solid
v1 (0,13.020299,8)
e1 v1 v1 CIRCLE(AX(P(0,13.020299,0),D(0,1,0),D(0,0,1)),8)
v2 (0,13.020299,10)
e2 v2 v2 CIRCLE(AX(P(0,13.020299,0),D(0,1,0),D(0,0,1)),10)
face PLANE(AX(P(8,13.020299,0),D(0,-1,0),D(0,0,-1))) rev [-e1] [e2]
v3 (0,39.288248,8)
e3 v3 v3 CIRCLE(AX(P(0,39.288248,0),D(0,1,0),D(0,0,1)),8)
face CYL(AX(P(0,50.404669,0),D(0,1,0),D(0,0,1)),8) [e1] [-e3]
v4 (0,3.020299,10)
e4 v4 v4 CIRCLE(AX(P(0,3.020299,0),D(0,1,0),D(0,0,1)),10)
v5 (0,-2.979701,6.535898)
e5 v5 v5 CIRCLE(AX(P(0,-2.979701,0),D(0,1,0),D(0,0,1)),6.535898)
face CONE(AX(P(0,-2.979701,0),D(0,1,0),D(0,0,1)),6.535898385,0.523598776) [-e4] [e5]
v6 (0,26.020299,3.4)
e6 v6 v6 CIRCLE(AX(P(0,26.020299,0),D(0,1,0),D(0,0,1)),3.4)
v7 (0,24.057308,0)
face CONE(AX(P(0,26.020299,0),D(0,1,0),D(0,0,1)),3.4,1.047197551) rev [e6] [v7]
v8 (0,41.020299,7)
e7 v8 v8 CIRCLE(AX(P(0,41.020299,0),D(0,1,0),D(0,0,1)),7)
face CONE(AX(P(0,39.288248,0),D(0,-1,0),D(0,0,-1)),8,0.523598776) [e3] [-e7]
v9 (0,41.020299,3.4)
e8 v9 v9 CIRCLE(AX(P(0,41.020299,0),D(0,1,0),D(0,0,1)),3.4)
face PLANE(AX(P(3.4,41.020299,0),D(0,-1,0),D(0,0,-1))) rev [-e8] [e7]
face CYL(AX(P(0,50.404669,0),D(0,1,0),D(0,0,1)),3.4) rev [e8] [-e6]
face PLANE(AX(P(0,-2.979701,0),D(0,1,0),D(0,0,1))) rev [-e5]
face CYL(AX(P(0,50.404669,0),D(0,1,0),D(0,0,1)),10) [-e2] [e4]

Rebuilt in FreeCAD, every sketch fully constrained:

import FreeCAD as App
import Part
import Sketcher

V = App.Vector
Q = App.Units.Quantity


def add_polygon(sketch, points):
    """Adds a closed chain of lines whose ends are joined by coincident constraints."""
    first, n = sketch.GeometryCount, len(points)
    for a, b in zip(points, points[1:] + points[:1]):
        sketch.addGeometry(Part.LineSegment(App.Vector(*a, 0), App.Vector(*b, 0)), False)
    for i in range(n):
        sketch.addConstraint(Sketcher.Constraint("Coincident", first + i, 2, first + (i + 1) % n, 1))

doc = App.newDocument("Part")
body = doc.addObject("PartDesign::Body", "Body")

# Sketch on XY plane
sketch1 = body.newObject("Sketcher::SketchObject", "Sketch")
sketch1.AttachmentSupport = (doc.getObject("XY_Plane"), [""])
sketch1.MapMode = "FlatFace"
add_polygon(sketch1, [(7, 41.020299), (3.4, 41.020299), (3.4, 26.020299), (0, 24.057308), (0, -2.979701), (6.535898, -2.979701), (10, 3.020299), (10, 13.020299), (8, 13.020299), (8, 39.288248)])  # lines 0-9
sketch1.addConstraint([
    Sketcher.Constraint("Horizontal", 0),
    Sketcher.Constraint("Vertical", 1),
    Sketcher.Constraint("Vertical", 3),
    Sketcher.Constraint("Horizontal", 4),
    Sketcher.Constraint("Vertical", 6),
    Sketcher.Constraint("Horizontal", 7),
    Sketcher.Constraint("Vertical", 8),
    Sketcher.Constraint("PointOnObject", 2, 2, -2),
    Sketcher.Constraint("Perpendicular", 2, 9),
    Sketcher.Constraint("DistanceX", 7, 2, 7, 1, Q("2 mm")),
    Sketcher.Constraint("DistanceY", 1, 2, 1, 1, Q("15 mm")),
    Sketcher.Constraint("DistanceY", 6, 1, 6, 2, Q("10 mm")),
    Sketcher.Constraint("Angle", 2, Q("-150 deg")),
    Sketcher.Constraint("Angle", 5, Q("60 deg")),
    Sketcher.Constraint("Distance", 9, Q("2 mm")),
    Sketcher.Constraint("DistanceX", 0, 2, 0, 1, Q("3.6 mm")),
    Sketcher.Constraint("DistanceX", -1, 1, 5, 2, Q("10 mm")),
    Sketcher.Constraint("DistanceY", 3, 2, 1, 2, Q("29 mm")),
    Sketcher.Constraint("DistanceY", 4, 2, 5, 2, Q("6 mm")),
    Sketcher.Constraint("DistanceY", -1, 1, 0, 2, Q("41.020299 mm")),
])
revolution = body.newObject("PartDesign::Revolution", "Revolution")
revolution.Profile = sketch1
revolution.ReferenceAxis = (sketch1, ["V_Axis"])
revolution.Angle = 360

doc.recompute()
